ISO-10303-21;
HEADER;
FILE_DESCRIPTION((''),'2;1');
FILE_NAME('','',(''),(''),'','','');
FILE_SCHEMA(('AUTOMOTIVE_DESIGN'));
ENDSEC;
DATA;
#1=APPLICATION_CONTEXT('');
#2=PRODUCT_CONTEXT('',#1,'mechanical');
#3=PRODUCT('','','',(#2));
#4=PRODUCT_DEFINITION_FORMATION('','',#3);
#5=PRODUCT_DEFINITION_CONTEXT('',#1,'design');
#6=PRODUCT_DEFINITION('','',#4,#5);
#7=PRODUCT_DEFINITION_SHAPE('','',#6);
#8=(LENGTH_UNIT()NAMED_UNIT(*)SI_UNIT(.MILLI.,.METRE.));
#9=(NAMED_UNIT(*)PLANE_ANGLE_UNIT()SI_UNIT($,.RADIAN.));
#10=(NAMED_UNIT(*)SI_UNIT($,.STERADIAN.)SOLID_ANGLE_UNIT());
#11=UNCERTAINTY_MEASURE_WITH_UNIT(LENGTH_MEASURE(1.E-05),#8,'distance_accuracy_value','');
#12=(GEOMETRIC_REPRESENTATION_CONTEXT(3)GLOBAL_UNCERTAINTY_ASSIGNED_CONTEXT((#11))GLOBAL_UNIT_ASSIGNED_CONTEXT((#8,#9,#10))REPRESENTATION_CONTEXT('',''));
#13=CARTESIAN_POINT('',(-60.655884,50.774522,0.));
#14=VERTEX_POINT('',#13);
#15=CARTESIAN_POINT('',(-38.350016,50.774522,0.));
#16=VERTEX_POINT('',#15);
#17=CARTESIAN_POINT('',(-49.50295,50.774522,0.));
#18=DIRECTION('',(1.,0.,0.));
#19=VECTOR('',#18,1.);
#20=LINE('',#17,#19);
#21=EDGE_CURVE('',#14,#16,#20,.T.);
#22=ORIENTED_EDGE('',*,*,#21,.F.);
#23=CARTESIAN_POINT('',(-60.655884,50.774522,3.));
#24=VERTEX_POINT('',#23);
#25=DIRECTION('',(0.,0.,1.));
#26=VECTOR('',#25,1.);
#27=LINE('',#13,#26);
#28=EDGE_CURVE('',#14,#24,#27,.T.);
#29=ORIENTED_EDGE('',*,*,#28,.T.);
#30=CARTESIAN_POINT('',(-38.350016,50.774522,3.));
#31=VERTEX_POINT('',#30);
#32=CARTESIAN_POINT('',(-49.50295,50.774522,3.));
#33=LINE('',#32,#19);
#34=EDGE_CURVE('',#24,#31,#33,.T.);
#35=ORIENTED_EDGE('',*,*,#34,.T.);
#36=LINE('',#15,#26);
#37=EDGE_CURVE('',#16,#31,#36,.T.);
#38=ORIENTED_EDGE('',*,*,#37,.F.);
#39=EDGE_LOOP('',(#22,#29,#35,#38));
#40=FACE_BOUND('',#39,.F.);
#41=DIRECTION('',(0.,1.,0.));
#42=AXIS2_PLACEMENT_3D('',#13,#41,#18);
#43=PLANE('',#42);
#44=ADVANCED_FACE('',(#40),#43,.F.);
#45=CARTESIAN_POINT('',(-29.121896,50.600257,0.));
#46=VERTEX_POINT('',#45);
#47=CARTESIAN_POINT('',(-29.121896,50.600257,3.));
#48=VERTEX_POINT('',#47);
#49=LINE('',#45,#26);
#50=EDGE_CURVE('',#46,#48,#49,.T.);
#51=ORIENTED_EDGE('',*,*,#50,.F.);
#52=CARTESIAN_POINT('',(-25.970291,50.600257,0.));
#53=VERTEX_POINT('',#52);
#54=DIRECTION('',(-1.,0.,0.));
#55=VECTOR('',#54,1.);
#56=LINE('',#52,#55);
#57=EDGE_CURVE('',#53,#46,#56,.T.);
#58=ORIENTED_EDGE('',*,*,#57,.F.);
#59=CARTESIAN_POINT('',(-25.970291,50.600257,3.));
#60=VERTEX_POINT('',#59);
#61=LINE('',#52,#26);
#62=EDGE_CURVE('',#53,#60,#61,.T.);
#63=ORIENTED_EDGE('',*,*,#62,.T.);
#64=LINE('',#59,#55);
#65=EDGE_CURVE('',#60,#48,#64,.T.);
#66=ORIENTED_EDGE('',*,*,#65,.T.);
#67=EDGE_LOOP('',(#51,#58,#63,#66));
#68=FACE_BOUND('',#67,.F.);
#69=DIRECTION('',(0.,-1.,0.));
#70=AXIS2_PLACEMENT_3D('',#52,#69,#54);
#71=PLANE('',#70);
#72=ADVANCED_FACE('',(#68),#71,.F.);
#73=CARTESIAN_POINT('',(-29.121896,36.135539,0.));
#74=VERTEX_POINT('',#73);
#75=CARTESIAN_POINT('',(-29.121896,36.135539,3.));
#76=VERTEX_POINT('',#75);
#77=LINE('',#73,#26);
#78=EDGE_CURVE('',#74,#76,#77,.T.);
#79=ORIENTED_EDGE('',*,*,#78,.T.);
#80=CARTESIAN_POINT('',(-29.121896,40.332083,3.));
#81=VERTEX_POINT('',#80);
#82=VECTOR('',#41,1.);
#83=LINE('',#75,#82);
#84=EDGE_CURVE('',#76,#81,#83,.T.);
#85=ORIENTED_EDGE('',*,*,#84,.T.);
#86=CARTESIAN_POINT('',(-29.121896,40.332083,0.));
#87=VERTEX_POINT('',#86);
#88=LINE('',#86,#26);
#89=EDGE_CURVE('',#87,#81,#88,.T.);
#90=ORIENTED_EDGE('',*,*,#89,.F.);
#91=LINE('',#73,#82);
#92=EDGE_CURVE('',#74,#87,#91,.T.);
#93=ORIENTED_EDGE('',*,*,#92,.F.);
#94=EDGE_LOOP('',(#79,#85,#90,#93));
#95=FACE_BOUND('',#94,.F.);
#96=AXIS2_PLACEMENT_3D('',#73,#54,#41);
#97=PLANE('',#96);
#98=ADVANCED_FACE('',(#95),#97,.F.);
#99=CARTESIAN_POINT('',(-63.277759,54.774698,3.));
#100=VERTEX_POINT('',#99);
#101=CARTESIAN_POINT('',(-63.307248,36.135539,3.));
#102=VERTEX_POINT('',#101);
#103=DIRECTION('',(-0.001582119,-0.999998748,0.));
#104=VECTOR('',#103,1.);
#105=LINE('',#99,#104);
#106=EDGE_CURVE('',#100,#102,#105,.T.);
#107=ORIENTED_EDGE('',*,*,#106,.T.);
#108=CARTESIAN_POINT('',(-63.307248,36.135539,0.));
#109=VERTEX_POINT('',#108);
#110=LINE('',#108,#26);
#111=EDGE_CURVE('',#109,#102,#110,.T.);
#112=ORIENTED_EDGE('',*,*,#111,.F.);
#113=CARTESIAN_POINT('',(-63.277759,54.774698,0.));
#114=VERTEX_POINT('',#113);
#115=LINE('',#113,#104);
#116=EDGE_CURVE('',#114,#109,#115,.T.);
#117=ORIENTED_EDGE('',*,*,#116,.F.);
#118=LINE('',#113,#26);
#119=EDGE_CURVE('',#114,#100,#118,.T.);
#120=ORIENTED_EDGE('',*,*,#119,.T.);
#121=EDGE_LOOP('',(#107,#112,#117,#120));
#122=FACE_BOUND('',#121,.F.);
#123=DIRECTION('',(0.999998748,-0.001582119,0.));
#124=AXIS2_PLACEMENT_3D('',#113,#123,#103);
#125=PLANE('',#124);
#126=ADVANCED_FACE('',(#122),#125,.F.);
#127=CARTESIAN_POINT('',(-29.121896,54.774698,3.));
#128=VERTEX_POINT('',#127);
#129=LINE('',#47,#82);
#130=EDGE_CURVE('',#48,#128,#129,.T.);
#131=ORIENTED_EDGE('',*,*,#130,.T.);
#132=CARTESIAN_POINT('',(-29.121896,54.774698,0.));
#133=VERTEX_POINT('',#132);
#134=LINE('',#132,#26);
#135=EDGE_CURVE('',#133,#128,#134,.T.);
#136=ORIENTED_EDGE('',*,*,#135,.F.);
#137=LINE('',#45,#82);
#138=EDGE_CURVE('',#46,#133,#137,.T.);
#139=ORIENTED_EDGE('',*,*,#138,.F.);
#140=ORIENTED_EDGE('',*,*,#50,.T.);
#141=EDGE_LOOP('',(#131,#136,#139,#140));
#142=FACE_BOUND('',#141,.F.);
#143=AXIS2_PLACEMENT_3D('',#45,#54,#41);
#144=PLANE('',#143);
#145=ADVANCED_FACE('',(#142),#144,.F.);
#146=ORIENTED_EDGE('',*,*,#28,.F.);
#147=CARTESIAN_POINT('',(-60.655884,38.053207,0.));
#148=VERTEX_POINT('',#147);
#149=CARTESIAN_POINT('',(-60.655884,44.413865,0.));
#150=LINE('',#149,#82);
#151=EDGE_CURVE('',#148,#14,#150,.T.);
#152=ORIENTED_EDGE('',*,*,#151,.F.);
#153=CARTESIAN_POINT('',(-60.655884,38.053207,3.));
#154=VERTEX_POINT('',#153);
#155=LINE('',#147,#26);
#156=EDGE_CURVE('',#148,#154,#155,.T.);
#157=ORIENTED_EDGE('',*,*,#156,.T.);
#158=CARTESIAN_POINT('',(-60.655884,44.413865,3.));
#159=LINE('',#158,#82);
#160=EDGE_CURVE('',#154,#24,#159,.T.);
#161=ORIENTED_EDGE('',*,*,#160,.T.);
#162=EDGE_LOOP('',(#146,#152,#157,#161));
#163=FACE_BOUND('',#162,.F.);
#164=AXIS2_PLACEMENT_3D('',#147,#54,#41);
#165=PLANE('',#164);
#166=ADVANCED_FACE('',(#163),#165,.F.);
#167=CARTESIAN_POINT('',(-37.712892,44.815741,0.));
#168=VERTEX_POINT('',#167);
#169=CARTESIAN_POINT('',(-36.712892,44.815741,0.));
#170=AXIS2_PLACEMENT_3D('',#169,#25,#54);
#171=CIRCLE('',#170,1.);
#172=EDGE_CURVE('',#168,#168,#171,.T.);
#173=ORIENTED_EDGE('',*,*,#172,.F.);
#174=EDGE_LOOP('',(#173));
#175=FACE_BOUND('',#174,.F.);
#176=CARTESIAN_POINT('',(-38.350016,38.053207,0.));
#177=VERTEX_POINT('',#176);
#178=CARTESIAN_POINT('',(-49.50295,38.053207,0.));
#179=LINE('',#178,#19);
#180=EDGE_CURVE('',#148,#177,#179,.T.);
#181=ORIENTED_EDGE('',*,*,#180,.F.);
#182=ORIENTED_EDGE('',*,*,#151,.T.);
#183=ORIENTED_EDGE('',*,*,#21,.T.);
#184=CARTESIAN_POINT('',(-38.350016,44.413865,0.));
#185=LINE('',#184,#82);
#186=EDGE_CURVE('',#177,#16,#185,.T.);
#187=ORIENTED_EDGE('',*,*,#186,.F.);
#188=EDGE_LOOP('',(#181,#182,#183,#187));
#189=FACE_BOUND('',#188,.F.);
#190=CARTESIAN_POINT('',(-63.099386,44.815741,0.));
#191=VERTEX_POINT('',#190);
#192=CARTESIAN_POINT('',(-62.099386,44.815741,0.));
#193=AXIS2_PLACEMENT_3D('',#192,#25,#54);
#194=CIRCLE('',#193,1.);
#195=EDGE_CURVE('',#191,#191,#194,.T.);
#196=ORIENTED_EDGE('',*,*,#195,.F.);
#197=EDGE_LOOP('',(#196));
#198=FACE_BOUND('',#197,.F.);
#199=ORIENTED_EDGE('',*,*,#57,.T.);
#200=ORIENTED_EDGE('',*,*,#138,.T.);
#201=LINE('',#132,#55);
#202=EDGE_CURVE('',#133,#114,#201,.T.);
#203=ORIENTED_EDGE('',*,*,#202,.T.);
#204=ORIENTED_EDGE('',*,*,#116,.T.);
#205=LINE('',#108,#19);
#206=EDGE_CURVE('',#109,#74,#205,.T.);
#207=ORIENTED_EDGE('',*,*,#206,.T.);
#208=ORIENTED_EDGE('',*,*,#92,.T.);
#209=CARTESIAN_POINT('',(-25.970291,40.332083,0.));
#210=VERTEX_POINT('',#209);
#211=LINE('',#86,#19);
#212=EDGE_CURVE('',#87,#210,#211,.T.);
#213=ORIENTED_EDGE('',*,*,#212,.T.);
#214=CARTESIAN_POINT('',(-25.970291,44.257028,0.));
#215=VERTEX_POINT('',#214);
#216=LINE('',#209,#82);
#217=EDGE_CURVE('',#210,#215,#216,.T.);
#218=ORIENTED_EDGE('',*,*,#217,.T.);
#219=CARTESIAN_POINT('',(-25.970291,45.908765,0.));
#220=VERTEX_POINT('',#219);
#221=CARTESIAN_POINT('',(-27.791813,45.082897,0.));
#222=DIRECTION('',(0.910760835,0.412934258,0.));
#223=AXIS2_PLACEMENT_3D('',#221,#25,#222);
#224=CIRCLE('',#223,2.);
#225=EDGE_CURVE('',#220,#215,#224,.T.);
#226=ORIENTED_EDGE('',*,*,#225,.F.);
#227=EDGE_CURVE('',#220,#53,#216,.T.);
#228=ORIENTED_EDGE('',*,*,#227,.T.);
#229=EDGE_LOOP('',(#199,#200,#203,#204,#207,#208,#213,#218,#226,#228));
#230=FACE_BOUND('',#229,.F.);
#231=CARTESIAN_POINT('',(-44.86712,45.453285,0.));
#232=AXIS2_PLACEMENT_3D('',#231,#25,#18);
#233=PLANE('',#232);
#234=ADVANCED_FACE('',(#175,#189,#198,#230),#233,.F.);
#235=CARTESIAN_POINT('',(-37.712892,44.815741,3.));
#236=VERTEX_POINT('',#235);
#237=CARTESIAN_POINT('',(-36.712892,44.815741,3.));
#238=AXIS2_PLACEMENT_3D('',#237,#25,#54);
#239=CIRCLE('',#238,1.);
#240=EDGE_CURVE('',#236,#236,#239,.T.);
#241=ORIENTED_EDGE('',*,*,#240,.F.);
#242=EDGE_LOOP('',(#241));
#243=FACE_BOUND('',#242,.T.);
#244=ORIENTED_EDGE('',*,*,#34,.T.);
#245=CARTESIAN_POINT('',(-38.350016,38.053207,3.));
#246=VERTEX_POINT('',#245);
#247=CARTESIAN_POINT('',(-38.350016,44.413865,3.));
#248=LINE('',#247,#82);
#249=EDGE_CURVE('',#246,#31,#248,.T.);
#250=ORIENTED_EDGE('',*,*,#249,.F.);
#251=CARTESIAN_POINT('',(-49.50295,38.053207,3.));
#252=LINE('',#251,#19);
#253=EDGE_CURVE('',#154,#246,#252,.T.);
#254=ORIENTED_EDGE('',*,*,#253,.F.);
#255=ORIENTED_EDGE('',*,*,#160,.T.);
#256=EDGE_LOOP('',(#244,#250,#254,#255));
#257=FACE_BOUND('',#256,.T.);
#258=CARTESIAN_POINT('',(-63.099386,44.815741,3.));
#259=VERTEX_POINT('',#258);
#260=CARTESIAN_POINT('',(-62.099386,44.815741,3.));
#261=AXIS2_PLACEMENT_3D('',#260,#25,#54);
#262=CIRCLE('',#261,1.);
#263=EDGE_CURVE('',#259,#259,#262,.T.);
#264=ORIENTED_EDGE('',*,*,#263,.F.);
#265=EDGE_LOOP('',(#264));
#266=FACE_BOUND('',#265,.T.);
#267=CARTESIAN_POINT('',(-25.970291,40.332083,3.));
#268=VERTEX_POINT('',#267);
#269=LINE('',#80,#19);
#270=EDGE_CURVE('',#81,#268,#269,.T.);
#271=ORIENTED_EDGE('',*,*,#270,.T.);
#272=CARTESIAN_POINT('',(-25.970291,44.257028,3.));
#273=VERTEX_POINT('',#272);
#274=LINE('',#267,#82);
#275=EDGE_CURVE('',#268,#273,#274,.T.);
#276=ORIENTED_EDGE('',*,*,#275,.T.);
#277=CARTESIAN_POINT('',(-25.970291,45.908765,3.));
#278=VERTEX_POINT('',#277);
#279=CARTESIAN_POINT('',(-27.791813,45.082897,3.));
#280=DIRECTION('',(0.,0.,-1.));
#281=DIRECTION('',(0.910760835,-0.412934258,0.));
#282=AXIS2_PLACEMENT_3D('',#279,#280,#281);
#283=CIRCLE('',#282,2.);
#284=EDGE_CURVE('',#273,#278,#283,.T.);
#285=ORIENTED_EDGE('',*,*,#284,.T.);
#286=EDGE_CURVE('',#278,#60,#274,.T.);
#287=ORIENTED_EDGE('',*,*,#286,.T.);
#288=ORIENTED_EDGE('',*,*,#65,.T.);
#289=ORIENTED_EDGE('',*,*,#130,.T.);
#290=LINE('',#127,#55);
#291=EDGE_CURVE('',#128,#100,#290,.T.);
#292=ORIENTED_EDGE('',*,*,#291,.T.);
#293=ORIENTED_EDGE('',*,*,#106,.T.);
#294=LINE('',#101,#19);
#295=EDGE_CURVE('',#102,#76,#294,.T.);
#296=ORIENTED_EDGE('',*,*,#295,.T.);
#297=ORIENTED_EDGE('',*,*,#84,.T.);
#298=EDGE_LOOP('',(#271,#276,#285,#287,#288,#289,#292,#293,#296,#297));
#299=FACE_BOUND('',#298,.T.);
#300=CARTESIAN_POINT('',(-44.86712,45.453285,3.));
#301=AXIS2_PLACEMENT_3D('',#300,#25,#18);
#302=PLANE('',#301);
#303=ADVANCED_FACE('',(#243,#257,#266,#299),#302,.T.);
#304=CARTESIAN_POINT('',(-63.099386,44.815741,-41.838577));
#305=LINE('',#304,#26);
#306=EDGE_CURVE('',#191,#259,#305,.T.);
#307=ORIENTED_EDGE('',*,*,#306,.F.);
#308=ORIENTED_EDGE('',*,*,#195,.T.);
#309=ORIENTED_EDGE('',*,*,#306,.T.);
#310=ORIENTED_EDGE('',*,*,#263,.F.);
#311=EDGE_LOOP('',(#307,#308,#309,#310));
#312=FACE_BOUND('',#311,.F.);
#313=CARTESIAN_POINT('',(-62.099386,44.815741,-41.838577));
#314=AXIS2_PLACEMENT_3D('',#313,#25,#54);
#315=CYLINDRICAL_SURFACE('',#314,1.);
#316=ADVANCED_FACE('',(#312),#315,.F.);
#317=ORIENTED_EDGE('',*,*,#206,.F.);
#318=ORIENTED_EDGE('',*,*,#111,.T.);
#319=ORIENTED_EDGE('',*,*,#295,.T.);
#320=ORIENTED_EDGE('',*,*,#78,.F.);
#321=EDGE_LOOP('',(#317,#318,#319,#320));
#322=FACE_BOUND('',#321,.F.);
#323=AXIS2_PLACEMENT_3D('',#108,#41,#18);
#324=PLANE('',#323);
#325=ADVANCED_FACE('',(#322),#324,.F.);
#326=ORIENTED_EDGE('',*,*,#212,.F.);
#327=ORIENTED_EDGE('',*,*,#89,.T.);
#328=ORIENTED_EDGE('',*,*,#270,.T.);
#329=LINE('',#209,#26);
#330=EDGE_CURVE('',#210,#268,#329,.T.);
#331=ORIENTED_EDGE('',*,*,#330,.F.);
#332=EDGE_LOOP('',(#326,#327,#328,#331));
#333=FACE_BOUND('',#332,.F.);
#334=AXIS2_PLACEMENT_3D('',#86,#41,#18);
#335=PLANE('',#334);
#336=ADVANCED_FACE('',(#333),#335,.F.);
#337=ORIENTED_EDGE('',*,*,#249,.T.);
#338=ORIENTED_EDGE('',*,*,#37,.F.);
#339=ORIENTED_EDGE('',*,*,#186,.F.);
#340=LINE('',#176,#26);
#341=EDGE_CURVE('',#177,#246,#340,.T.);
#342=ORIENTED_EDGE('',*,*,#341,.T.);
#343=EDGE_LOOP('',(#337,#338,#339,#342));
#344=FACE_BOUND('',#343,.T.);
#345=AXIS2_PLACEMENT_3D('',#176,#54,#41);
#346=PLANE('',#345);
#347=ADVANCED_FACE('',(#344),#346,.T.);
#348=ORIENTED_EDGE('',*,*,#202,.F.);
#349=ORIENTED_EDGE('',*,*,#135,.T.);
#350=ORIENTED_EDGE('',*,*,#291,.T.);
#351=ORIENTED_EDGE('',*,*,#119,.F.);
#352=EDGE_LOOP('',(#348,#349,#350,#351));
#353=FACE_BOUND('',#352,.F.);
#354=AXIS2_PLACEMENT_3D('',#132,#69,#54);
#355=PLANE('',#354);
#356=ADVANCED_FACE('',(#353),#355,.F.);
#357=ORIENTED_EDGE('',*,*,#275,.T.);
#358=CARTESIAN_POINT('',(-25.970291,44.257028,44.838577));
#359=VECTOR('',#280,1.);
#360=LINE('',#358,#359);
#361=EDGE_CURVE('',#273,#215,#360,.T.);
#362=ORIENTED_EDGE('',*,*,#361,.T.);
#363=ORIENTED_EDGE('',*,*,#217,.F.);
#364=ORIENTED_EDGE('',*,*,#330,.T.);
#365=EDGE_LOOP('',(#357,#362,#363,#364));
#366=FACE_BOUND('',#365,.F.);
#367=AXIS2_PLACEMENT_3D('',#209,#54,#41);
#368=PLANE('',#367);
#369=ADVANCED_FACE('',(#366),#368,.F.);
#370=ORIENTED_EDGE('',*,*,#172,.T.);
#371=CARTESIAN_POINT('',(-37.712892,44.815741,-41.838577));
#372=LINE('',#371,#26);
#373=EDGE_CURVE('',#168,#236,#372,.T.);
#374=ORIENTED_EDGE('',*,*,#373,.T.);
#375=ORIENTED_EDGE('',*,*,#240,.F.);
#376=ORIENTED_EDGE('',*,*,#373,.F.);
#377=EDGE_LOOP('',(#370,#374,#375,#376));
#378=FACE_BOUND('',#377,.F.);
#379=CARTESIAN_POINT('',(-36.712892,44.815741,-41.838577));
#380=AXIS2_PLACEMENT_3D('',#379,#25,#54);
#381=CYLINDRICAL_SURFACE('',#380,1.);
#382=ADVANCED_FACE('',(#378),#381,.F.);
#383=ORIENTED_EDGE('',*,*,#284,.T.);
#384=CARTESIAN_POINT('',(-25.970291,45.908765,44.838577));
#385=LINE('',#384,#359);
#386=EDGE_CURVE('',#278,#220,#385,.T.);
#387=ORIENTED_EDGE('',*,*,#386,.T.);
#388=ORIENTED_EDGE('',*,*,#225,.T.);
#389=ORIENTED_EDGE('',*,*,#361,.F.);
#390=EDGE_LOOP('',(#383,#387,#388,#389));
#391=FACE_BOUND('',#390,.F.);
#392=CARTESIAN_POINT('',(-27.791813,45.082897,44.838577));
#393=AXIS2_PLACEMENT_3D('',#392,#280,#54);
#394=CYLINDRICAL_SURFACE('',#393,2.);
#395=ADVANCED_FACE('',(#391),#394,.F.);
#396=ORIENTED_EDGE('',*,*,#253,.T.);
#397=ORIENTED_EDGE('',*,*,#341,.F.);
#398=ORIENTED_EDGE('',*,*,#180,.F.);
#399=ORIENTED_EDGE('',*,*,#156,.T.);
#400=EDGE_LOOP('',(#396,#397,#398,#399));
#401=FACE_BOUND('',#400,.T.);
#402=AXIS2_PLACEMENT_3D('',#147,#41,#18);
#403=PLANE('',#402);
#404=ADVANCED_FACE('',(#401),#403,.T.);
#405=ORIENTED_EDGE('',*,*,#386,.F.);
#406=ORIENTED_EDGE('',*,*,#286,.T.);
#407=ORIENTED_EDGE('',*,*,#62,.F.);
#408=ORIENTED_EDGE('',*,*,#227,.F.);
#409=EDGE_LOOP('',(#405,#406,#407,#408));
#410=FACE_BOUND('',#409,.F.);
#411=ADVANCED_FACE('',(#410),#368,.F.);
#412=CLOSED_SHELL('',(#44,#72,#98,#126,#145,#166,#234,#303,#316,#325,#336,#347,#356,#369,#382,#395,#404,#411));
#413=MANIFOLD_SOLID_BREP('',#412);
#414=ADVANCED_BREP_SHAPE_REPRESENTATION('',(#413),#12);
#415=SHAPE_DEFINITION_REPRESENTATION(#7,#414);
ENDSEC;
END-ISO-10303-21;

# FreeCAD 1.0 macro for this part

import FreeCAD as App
import Part
import Sketcher
from FreeCAD import Vector


def add_polygon(sketch, points):
    """Adds a closed chain of lines whose ends are joined by coincident constraints."""
    first, n = sketch.GeometryCount, len(points)
    for a, b in zip(points, points[1:] + points[:1]):
        sketch.addGeometry(Part.LineSegment(App.Vector(*a, 0), App.Vector(*b, 0)), False)
    for i in range(n):
        sketch.addConstraint(Sketcher.Constraint("Coincident", first + i, 2, first + (i + 1) % n, 1))

doc = App.newDocument("Part")
body = doc.addObject("PartDesign::Body", "Body")

sketch1 = doc.addObject("Sketcher::SketchObject", "Sketch")
body.addObject(sketch1)
sketch1.AttachmentSupport = (doc.XY_Plane, [""])
sketch1.MapMode = "FlatFace"
add_polygon(sketch1, [(-29.1, 54.8), (-63.3, 54.8), (-63.3, 36.1), (-29.1, 36.1), (-29.1, 40.3), (-26, 40.3), (-26, 50.6), (-29.1, 50.6)])
add_polygon(sketch1, [(-38.4, 38.1), (-60.7, 38.1), (-60.7, 50.8), (-38.4, 50.8)])
sketch1.addConstraint([
    Sketcher.Constraint("Horizontal", 0),
    Sketcher.Constraint("Horizontal", 2),
    Sketcher.Constraint("Vertical", 3),
    Sketcher.Constraint("Horizontal", 4),
    Sketcher.Constraint("Vertical", 5),
    Sketcher.Constraint("Horizontal", 6),
    Sketcher.Constraint("Vertical", 7),
    Sketcher.Constraint("Horizontal", 8),
    Sketcher.Constraint("Vertical", 9),
    Sketcher.Constraint("Horizontal", 10),
    Sketcher.Constraint("Vertical", 11),
    Sketcher.Constraint("Vertical", 3, 2, 6, 2),
    Sketcher.Constraint("DistanceX", 2, 1, 2, 2, 34.185352),
    Sketcher.Constraint("DistanceX", 8, 2, 8, 1, 22.305869),
    Sketcher.Constraint("DistanceY", 7, 1, 7, 2, 4.174441),
    Sketcher.Constraint("Distance", 1, 18.639182),
    Sketcher.Constraint("DistanceX", 0, 2, 0, 1, 34.155862),
    Sketcher.Constraint("DistanceX", 4, 1, 4, 2, 3.151605),
    Sketcher.Constraint("DistanceY", 3, 1, 3, 2, 4.196543),
    Sketcher.Constraint("DistanceY", 9, 1, 9, 2, 12.721315),
    Sketcher.Constraint("DistanceX", 0, 2, -1, 1, 63.277759),
    Sketcher.Constraint("DistanceY", -1, 1, 1, 2, 36.135539),
    Sketcher.Constraint("DistanceY", 8, 2, 0, 2, 16.721491),
    Sketcher.Constraint("DistanceX", 8, 2, 2, 2, 31.533988),
])
pad1 = doc.addObject("PartDesign::Pad", "Pad")
body.addObject(pad1)
pad1.Profile = sketch1
pad1.Length = 3

sketch2 = doc.addObject("Sketcher::SketchObject", "Sketch001")
body.addObject(sketch2)
sketch2.AttachmentSupport = (doc.XY_Plane, [""])
sketch2.MapMode = "FlatFace"
sketch2.addGeometry(Part.Circle(Vector(-62.1, 44.8, 0), Vector(0, 0, 1), 1), False)
sketch2.addConstraint([
    Sketcher.Constraint("Diameter", 0, 2.0),
    Sketcher.Constraint("DistanceY", -1, 1, 0, 3, 44.815741),
    Sketcher.Constraint("DistanceX", 0, 3, -1, 1, 62.099386),
])
doc.recompute()
hole = doc.addObject("PartDesign::Hole", "Hole")
body.addObject(hole)
hole.Profile = sketch2
hole.ThreadType = "None"
hole.Diameter = 2
hole.DepthType = "ThroughAll"
hole.Reversed = True

sketch3 = doc.addObject("Sketcher::SketchObject", "Sketch002")
body.addObject(sketch3)
sketch3.AttachmentSupport = (doc.XY_Plane, [""])
sketch3.MapMode = "FlatFace"
sketch3.addGeometry(Part.Circle(Vector(-36.7, 44.8, 0), Vector(0, 0, 1), 1), False)
sketch3.addConstraint([
    Sketcher.Constraint("Diameter", 0, 2.0),
    Sketcher.Constraint("DistanceY", -1, 1, 0, 3, 44.815741),
    Sketcher.Constraint("DistanceX", 0, 3, -1, 1, 36.712892),
])
doc.recompute()
hole2 = doc.addObject("PartDesign::Hole", "Hole001")
body.addObject(hole2)
hole2.Profile = sketch3
hole2.ThreadType = "None"
hole2.Diameter = 2
hole2.DepthType = "ThroughAll"
hole2.Reversed = True

sketch4 = doc.addObject("Sketcher::SketchObject", "Sketch003")
body.addObject(sketch4)
sketch4.AttachmentSupport = (doc.XY_Plane, [""])
sketch4.MapMode = "FlatFace"
sketch4.AttachmentOffset = App.Placement(Vector(0, 0, 3), App.Rotation())
sketch4.addGeometry(Part.Circle(Vector(-27.8, 45.1, 0), Vector(0, 0, 1), 2), False)
sketch4.addConstraint([
    Sketcher.Constraint("Diameter", 0, 4.0),
    Sketcher.Constraint("DistanceX", 0, 3, -1, 1, 27.791813),
    Sketcher.Constraint("DistanceY", -1, 1, 0, 3, 45.082897),
])
doc.recompute()
hole3 = doc.addObject("PartDesign::Hole", "Hole002")
body.addObject(hole3)
hole3.Profile = sketch4
hole3.ThreadType = "None"
hole3.Diameter = 4
hole3.DepthType = "ThroughAll"

doc.recompute()
